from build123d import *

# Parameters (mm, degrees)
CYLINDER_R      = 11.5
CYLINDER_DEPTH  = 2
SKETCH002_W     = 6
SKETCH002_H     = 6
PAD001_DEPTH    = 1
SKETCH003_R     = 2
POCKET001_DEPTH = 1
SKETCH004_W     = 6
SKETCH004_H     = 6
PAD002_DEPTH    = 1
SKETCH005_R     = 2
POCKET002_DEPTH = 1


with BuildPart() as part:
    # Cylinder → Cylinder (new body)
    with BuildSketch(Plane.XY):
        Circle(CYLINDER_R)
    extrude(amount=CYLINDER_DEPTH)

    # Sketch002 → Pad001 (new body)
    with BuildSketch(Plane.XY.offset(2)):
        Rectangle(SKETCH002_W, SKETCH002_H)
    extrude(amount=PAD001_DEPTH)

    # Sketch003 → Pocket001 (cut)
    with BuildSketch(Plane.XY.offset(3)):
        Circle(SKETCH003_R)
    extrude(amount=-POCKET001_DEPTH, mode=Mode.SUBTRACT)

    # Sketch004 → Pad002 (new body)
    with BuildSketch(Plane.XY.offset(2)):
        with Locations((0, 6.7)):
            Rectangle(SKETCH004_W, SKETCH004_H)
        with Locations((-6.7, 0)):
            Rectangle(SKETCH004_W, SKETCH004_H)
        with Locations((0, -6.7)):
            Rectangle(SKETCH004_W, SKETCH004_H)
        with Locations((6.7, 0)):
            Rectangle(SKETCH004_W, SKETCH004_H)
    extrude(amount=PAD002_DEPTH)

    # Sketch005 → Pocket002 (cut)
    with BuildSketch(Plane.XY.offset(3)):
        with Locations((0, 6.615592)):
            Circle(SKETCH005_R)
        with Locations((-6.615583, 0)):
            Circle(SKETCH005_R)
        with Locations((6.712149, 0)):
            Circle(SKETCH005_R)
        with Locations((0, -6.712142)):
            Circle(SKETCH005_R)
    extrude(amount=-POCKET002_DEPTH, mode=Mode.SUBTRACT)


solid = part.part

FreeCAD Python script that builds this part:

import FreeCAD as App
import Part
import Sketcher
from FreeCAD import Vector

doc = App.newDocument("Part")
body = doc.addObject("PartDesign::Body", "Body")

# Sketch on XY plane
sketch1 = body.newObject("Sketcher::SketchObject", "Sketch")
sketch1.AttachmentSupport = (doc.getObject("XY_Plane"), [""])
sketch1.MapMode = "FlatFace"
sketch1.addGeometry(Part.Circle(Vector(0, 0, 0), Vector(0, 0, 1), 12), False)
sketch1.addConstraint([
    Sketcher.Constraint("Coincident", 0, 3, -1, 1),
    Sketcher.Constraint("Diameter", 0, 23.0),
])
pad1 = body.newObject("PartDesign::Pad", "Pad")
pad1.Profile = sketch1
pad1.Length = 2

# Sketch on XY plane
sketch2 = body.newObject("Sketcher::SketchObject", "Sketch001")
sketch2.AttachmentSupport = (doc.getObject("XY_Plane"), [""])
sketch2.MapMode = "FlatFace"
sketch2.AttachmentOffset = App.Placement(Vector(0, 0, 2), App.Rotation())
sketch2.addGeometry([
    Part.LineSegment(Vector(-3, 3, 0), Vector(-3, -3, 0)),
    Part.LineSegment(Vector(-3, -3, 0), Vector(3, -3, 0)),
    Part.LineSegment(Vector(3, -3, 0), Vector(3, 3, 0)),
    Part.LineSegment(Vector(3, 3, 0), Vector(-3, 3, 0)),
], False)
sketch2.addConstraint([
    Sketcher.Constraint("Coincident", 0, 2, 1, 1),
    Sketcher.Constraint("Coincident", 1, 2, 2, 1),
    Sketcher.Constraint("Coincident", 2, 2, 3, 1),
    Sketcher.Constraint("Coincident", 3, 2, 0, 1),
    Sketcher.Constraint("Vertical", 0),
    Sketcher.Constraint("Horizontal", 1),
    Sketcher.Constraint("Vertical", 2),
    Sketcher.Constraint("Horizontal", 3),
    Sketcher.Constraint("Symmetric", 0, 2, 2, 2, -1, 1),
    Sketcher.Constraint("Equal", 3, 0),
    Sketcher.Constraint("DistanceX", 1, 1, 1, 2, 6.0),
])
pad2 = body.newObject("PartDesign::Pad", "Pad001")
pad2.Profile = sketch2
pad2.Length = 1

# Sketch on XY plane
sketch3 = body.newObject("Sketcher::SketchObject", "Sketch002")
sketch3.AttachmentSupport = (doc.getObject("XY_Plane"), [""])
sketch3.MapMode = "FlatFace"
sketch3.AttachmentOffset = App.Placement(Vector(0, 0, 3), App.Rotation())
sketch3.addGeometry(Part.Circle(Vector(0, 0, 0), Vector(0, 0, 1), 2), False)
sketch3.addConstraint([
    Sketcher.Constraint("Coincident", 0, 3, -1, 1),
    Sketcher.Constraint("Diameter", 0, 4.0),
])
pocket1 = body.newObject("PartDesign::Pocket", "Pocket")
pocket1.Profile = sketch3
pocket1.Length = 1

# Sketch on XY plane
sketch4 = body.newObject("Sketcher::SketchObject", "Sketch003")
sketch4.AttachmentSupport = (doc.getObject("XY_Plane"), [""])
sketch4.MapMode = "FlatFace"
sketch4.AttachmentOffset = App.Placement(Vector(0, 0, 2), App.Rotation())
sketch4.addGeometry([
    Part.LineSegment(Vector(-3, 10, 0), Vector(-3, 4, 0)),  # 0
    Part.LineSegment(Vector(-3, 4, 0), Vector(3, 4, 0)),  # 1
    Part.LineSegment(Vector(3, 4, 0), Vector(3, 10, 0)),  # 2
    Part.LineSegment(Vector(3, 10, 0), Vector(-3, 10, 0)),  # 3
    Part.LineSegment(Vector(-10, 3, 0), Vector(-10, -3, 0)),  # 4
    Part.LineSegment(Vector(-10, -3, 0), Vector(-4, -3, 0)),  # 5
    Part.LineSegment(Vector(-4, -3, 0), Vector(-4, 3, 0)),  # 6
    Part.LineSegment(Vector(-4, 3, 0), Vector(-10, 3, 0)),  # 7
    Part.LineSegment(Vector(-3, -4, 0), Vector(-3, -10, 0)),  # 8
    Part.LineSegment(Vector(-3, -10, 0), Vector(3, -10, 0)),  # 9
    Part.LineSegment(Vector(3, -10, 0), Vector(3, -4, 0)),  # 10
    Part.LineSegment(Vector(3, -4, 0), Vector(-3, -4, 0)),  # 11
    Part.LineSegment(Vector(4, 3, 0), Vector(4, -3, 0)),  # 12
    Part.LineSegment(Vector(4, -3, 0), Vector(10, -3, 0)),  # 13
    Part.LineSegment(Vector(10, -3, 0), Vector(10, 3, 0)),  # 14
    Part.LineSegment(Vector(10, 3, 0), Vector(4, 3, 0)),  # 15
], False)
sketch4.addConstraint([
    Sketcher.Constraint("Coincident", 0, 2, 1, 1),
    Sketcher.Constraint("Coincident", 1, 2, 2, 1),
    Sketcher.Constraint("Coincident", 2, 2, 3, 1),
    Sketcher.Constraint("Coincident", 3, 2, 0, 1),
    Sketcher.Constraint("Coincident", 4, 2, 5, 1),
    Sketcher.Constraint("Coincident", 5, 2, 6, 1),
    Sketcher.Constraint("Coincident", 6, 2, 7, 1),
    Sketcher.Constraint("Coincident", 7, 2, 4, 1),
    Sketcher.Constraint("Coincident", 8, 2, 9, 1),
    Sketcher.Constraint("Coincident", 9, 2, 10, 1),
    Sketcher.Constraint("Coincident", 10, 2, 11, 1),
    Sketcher.Constraint("Coincident", 11, 2, 8, 1),
    Sketcher.Constraint("Coincident", 12, 2, 13, 1),
    Sketcher.Constraint("Coincident", 13, 2, 14, 1),
    Sketcher.Constraint("Coincident", 14, 2, 15, 1),
    Sketcher.Constraint("Coincident", 15, 2, 12, 1),
    Sketcher.Constraint("Vertical", 0),
    Sketcher.Constraint("Horizontal", 1),
    Sketcher.Constraint("Vertical", 2),
    Sketcher.Constraint("Horizontal", 3),
    Sketcher.Constraint("Vertical", 4),
    Sketcher.Constraint("Horizontal", 5),
    Sketcher.Constraint("Vertical", 6),
    Sketcher.Constraint("Horizontal", 7),
    Sketcher.Constraint("Vertical", 8),
    Sketcher.Constraint("Horizontal", 9),
    Sketcher.Constraint("Vertical", 10),
    Sketcher.Constraint("Horizontal", 11),
    Sketcher.Constraint("Vertical", 12),
    Sketcher.Constraint("Horizontal", 13),
    Sketcher.Constraint("Vertical", 14),
    Sketcher.Constraint("Horizontal", 15),
    Sketcher.Constraint("Symmetric", 2, 2, 8, 2, -1, 1),
    Sketcher.Constraint("Symmetric", 0, 2, 10, 2, -1, 1),
    Sketcher.Constraint("Symmetric", 6, 2, 12, 2, -1, 1),
    Sketcher.Constraint("Symmetric", 4, 2, 14, 2, -1, 1),
    Sketcher.Constraint("Horizontal", 5, 2, 12, 2),
    Sketcher.Constraint("Vertical", 3, 2, 8, 2),
    Sketcher.Constraint("Equal", 3, 5),
    Sketcher.Constraint("Equal", 15, 0),
    Sketcher.Constraint("Equal", 2, 4),
    Sketcher.Constraint("DistanceX", 1, 1, 1, 2, 6.0),
    Sketcher.Constraint("DistanceY", -1, 1, 0, 2, 3.7),
    Sketcher.Constraint("DistanceX", 4, 2, -1, 1, 9.7),
])
pad3 = body.newObject("PartDesign::Pad", "Pad002")
pad3.Profile = sketch4
pad3.Length = 1

# Sketch on XY plane
sketch5 = body.newObject("Sketcher::SketchObject", "Sketch004")
sketch5.AttachmentSupport = (doc.getObject("XY_Plane"), [""])
sketch5.MapMode = "FlatFace"
sketch5.AttachmentOffset = App.Placement(Vector(0, 0, 3), App.Rotation())
sketch5.addGeometry([
    Part.Circle(Vector(0, 6.6, 0), Vector(0, 0, 1), 2),
    Part.Circle(Vector(-6.6, 0, 0), Vector(0, 0, 1), 2),
    Part.Circle(Vector(6.7, 0, 0), Vector(0, 0, 1), 2),
    Part.Circle(Vector(0, -6.7, 0), Vector(0, 0, 1), 2),
], False)
sketch5.addConstraint([
    Sketcher.Constraint("Equal", 0, 1),
    Sketcher.Constraint("Equal", 1, 2),
    Sketcher.Constraint("Equal", 2, 3),
    Sketcher.Constraint("PointOnObject", 0, 3, -2),
    Sketcher.Constraint("PointOnObject", 1, 3, -1),
    Sketcher.Constraint("PointOnObject", 2, 3, -1),
    Sketcher.Constraint("PointOnObject", 3, 3, -2),
    Sketcher.Constraint("Diameter", 0, 4.0),
    Sketcher.Constraint("DistanceX", -1, 1, 2, 3, 6.712149),
    Sketcher.Constraint("DistanceY", -1, 1, 0, 3, 6.615592),
    Sketcher.Constraint("DistanceX", 1, 3, -1, 1, 6.615583),
    Sketcher.Constraint("DistanceY", 3, 3, -1, 1, 6.712142),
])
pocket2 = body.newObject("PartDesign::Pocket", "Pocket001")
pocket2.Profile = sketch5
pocket2.Length = 1

doc.recompute()
